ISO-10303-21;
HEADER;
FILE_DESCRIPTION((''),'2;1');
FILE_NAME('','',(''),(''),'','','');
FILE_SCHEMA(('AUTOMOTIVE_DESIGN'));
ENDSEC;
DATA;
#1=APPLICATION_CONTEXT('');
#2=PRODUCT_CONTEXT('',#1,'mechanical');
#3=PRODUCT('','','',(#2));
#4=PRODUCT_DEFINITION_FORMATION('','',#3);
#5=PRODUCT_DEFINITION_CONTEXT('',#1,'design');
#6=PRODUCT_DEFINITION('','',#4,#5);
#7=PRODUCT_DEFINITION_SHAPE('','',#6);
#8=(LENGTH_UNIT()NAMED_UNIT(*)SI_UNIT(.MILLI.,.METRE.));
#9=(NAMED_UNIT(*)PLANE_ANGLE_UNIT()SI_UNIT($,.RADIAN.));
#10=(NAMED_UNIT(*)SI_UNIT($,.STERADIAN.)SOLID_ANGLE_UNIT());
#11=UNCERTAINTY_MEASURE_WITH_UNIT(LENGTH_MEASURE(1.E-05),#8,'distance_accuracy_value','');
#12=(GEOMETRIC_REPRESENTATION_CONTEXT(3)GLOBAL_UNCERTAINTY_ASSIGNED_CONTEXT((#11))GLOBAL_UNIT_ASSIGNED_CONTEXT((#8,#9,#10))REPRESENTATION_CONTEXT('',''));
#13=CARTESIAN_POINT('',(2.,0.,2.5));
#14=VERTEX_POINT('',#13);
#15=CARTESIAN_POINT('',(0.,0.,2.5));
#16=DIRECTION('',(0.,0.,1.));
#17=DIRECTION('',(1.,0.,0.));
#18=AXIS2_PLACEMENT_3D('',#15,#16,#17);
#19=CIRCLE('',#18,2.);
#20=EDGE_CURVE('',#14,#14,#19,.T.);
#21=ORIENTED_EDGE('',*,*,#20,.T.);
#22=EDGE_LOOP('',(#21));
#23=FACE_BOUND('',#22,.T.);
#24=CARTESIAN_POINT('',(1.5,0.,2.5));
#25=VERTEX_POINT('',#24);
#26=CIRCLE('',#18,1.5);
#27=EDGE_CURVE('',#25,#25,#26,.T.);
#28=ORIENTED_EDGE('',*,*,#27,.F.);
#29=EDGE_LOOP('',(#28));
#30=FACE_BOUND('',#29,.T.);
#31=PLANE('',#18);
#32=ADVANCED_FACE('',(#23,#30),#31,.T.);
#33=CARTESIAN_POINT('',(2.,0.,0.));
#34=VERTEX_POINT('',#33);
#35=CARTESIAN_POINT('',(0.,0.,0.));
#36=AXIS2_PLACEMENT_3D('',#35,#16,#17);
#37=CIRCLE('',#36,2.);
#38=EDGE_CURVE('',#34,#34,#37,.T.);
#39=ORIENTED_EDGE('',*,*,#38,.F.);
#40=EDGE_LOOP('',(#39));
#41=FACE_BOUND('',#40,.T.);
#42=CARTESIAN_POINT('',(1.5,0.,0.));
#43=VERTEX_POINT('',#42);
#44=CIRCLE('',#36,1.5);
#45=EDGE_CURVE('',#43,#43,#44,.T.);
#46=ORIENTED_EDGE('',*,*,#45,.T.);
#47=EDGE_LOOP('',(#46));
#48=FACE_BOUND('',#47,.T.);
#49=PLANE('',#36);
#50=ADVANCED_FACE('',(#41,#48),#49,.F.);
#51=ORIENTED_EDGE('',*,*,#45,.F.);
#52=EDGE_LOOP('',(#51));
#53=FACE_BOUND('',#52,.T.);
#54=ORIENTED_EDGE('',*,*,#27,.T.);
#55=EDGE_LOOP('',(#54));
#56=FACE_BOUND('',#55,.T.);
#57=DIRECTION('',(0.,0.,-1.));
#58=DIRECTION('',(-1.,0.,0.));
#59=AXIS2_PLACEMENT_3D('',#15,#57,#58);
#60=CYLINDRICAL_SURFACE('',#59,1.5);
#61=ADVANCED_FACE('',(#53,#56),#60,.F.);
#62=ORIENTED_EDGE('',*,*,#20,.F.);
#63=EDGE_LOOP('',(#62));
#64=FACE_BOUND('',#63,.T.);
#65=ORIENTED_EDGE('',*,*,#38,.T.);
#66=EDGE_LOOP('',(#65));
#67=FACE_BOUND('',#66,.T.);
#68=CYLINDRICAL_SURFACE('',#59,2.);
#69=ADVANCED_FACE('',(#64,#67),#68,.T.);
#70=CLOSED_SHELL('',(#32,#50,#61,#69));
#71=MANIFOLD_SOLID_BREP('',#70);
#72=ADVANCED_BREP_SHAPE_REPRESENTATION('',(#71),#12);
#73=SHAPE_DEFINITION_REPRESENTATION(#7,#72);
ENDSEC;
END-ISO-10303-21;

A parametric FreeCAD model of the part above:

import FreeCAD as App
import Part
import Sketcher

doc = App.newDocument("Part")
body = doc.addObject("PartDesign::Body", "Body")

# Sketch on XY plane
sketch1 = doc.addObject("Sketcher::SketchObject", "Sketch")
body.addObject(sketch1)
sketch1.AttachmentSupport = (doc.XY_Plane, [""])
sketch1.MapMode = "FlatFace"
sketch1.addGeometry(Part.Circle(App.Vector(0, 0, 0), App.Vector(0, 0, 1), 2), False)
sketch1.addConstraint([
    Sketcher.Constraint("Coincident", 0, 3, -1, 1),
    Sketcher.Constraint("Diameter", 0, 4.0),
])
pad1 = doc.addObject("PartDesign::Pad", "Pad")
body.addObject(pad1)
pad1.Profile = sketch1
pad1.Length = 2.5

# Sketch on XY plane
sketch2 = doc.addObject("Sketcher::SketchObject", "Sketch001")
body.addObject(sketch2)
sketch2.AttachmentSupport = (doc.XY_Plane, [""])
sketch2.MapMode = "FlatFace"
sketch2.addGeometry(Part.Circle(App.Vector(0, 0, 0), App.Vector(0, 0, 1), 1.5), False)
sketch2.addConstraint([
    Sketcher.Constraint("Coincident", 0, 3, -1, 1),
    Sketcher.Constraint("Diameter", 0, 3.0),
])
pocket1 = doc.addObject("PartDesign::Pocket", "Pocket")
body.addObject(pocket1)
pocket1.Profile = sketch2
pocket1.Length = 2.5
pocket1.Reversed = True

doc.recompute()
